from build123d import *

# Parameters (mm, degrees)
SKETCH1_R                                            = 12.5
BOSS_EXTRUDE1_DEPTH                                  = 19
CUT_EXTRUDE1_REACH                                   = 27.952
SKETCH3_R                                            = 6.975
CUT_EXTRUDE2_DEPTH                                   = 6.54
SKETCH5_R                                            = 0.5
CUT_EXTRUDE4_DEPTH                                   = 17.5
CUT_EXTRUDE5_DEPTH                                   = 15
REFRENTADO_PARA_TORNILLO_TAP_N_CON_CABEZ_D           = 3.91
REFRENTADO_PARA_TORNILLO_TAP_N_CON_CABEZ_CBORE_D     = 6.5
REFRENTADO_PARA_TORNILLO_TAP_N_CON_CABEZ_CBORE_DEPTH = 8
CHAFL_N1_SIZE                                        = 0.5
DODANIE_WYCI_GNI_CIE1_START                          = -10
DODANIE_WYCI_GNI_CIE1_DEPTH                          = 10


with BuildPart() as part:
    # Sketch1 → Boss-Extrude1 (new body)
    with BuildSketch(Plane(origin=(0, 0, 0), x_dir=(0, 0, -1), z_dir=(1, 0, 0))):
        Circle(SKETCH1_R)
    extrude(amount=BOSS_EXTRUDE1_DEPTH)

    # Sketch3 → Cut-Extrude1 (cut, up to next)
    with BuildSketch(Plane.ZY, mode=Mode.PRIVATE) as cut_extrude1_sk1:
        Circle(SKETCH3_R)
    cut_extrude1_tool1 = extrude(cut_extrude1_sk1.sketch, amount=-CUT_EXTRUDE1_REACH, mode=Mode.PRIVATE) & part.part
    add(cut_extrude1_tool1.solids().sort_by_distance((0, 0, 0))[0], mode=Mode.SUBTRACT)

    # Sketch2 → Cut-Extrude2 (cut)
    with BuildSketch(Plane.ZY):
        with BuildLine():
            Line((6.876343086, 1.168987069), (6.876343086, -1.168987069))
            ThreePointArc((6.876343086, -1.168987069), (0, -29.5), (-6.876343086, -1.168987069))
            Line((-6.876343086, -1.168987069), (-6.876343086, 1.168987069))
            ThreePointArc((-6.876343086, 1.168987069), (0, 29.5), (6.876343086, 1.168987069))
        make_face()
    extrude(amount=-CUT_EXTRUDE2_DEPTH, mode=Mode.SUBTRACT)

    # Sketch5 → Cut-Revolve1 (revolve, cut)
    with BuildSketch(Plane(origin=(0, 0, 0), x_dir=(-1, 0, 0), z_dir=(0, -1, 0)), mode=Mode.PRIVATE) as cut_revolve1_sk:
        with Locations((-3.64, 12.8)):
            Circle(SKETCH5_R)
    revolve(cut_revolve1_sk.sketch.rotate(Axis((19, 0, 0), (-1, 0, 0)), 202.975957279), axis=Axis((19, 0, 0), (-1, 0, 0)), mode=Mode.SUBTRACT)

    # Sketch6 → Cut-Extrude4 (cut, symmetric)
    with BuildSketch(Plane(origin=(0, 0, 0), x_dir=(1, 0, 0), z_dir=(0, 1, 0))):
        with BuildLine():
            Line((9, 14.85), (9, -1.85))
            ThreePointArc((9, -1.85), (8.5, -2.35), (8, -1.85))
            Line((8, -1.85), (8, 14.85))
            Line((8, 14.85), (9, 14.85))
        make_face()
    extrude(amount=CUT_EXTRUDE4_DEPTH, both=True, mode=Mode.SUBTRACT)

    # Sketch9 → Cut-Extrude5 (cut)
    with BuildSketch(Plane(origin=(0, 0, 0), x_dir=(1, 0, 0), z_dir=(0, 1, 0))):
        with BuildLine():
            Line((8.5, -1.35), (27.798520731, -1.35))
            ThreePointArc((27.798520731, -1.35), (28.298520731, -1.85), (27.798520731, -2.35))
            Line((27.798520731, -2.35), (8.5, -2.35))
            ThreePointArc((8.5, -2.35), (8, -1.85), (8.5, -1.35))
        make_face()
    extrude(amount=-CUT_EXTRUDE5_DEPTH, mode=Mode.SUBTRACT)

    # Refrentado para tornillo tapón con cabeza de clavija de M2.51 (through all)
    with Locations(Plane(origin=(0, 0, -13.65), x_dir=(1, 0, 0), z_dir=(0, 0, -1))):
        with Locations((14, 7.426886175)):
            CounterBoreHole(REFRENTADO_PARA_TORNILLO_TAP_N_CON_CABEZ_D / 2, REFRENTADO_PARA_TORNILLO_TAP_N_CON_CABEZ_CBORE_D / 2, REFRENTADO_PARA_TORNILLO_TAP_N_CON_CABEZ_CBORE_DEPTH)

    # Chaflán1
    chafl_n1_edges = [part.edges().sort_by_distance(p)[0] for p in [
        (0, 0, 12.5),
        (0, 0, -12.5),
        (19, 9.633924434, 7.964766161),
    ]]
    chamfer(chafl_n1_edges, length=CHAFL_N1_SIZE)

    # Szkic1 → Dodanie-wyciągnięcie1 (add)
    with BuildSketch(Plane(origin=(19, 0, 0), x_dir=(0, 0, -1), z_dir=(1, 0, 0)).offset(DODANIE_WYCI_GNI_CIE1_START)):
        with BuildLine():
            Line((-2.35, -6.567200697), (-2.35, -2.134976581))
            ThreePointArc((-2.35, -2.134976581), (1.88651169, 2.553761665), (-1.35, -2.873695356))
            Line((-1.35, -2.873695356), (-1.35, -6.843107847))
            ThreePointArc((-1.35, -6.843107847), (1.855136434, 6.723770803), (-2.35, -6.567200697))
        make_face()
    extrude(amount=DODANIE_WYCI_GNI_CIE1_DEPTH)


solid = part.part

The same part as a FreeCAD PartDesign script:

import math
import FreeCAD as App
import Part
import Sketcher


def edges_at(feature, points):
    """Names of the edges that pass closest to the given points."""
    edges = feature.Shape.Edges
    near = lambda p: min(range(len(edges)), key=lambda i: edges[i].distToShape(Part.Vertex(*p))[0])
    return sorted({f"Edge{near(p) + 1}" for p in points})

doc = App.newDocument("Part")
body = doc.addObject("PartDesign::Body", "Body")

sketch1 = body.newObject("Sketcher::SketchObject", "Sketch")
sketch1.AttachmentSupport = (doc.getObject("YZ_Plane"), [""])
sketch1.MapMode = "FlatFace"
sketch1.addGeometry(Part.Circle(App.Vector(0, 0, 0), App.Vector(0, 0, 1), 12.5), False)
sketch1.addConstraint([
    Sketcher.Constraint("Coincident", 0, 3, -1, 1),
    Sketcher.Constraint("Diameter", 0, 25.0),
])
pad1 = body.newObject("PartDesign::Pad", "Pad")
pad1.Profile = sketch1
pad1.Length = 19

sketch2 = body.newObject("Sketcher::SketchObject", "Sketch001")
sketch2.AttachmentSupport = (doc.getObject("YZ_Plane"), [""])
sketch2.MapMode = "FlatFace"
sketch2.addGeometry(Part.Circle(App.Vector(0, 0, 0), App.Vector(0, 0, 1), 6.975), False)
sketch2.addConstraint([
    Sketcher.Constraint("Coincident", 0, 3, -1, 1),
    Sketcher.Constraint("Diameter", 0, 13.95),
])
pocket1 = body.newObject("PartDesign::Pocket", "Pocket")
pocket1.Profile = sketch2
pocket1.Type = "UpToFirst"
pocket1.Reversed = True

sketch3 = body.newObject("Sketcher::SketchObject", "Sketch002")
sketch3.AttachmentSupport = (doc.getObject("YZ_Plane"), [""])
sketch3.MapMode = "FlatFace"
sketch3.addGeometry([
    Part.LineSegment(App.Vector(-1.168987, 6.876343, 0), App.Vector(1.168987, 6.876343, 0)),
    Part.ArcOfCircle(Part.Circle(App.Vector(14.5, 0, 0), App.Vector(0, 0, 1), 15), math.radians(-152.714615), math.radians(152.714615)),
    Part.LineSegment(App.Vector(1.168987, -6.876343, 0), App.Vector(-1.168987, -6.876343, 0)),
    Part.ArcOfCircle(Part.Circle(App.Vector(-14.5, 0, 0), App.Vector(0, 0, 1), 15), math.radians(27.285385), math.radians(332.714615)),
], False)
sketch3.addConstraint([
    Sketcher.Constraint("Coincident", 0, 2, 1, 2),
    Sketcher.Constraint("Coincident", 1, 1, 2, 1),
    Sketcher.Constraint("Coincident", 2, 2, 3, 2),
    Sketcher.Constraint("Coincident", 3, 1, 0, 1),
    Sketcher.Constraint("Horizontal", 0),
    Sketcher.Constraint("Horizontal", 2),
    Sketcher.Constraint("Equal", 1, 3),
    Sketcher.Constraint("Symmetric", 1, 3, 3, 3, -1, 1),
    Sketcher.Constraint("Symmetric", 0, 2, 1, 1, -1),
    Sketcher.Constraint("Radius", 1, 15.0),
    Sketcher.Constraint("DistanceX", 3, 3, 1, 3, 29.0),
    Sketcher.Constraint("DistanceX", 0, 1, 0, 2, 2.337974),
])
pocket2 = body.newObject("PartDesign::Pocket", "Pocket001")
pocket2.Profile = sketch3
pocket2.Length = 6.54
pocket2.Reversed = True

sketch4 = body.newObject("Sketcher::SketchObject", "Sketch003")
sketch4.AttachmentSupport = (doc.getObject("XZ_Plane"), [""])
sketch4.MapMode = "FlatFace"
sketch4.addGeometry(Part.Circle(App.Vector(3.64, -12.8, 0), App.Vector(0, 0, 1), 0.5), False)
sketch4.addConstraint([
    Sketcher.Constraint("Diameter", 0, 1.0),
    Sketcher.Constraint("DistanceY", 0, 3, -1, 1, 12.8),
    Sketcher.Constraint("DistanceX", -1, 1, 0, 3, 3.64),
])
groove = body.newObject("PartDesign::Groove", "Groove")
groove.Profile = sketch4
groove.ReferenceAxis = (sketch4, ["H_Axis"])
groove.Angle = 360

sketch5 = body.newObject("Sketcher::SketchObject", "Sketch004")
sketch5.AttachmentSupport = (doc.getObject("XZ_Plane"), [""])
sketch5.MapMode = "FlatFace"
sketch5.addGeometry([
    Part.LineSegment(App.Vector(9, 1.85, 0), App.Vector(9, -14.85, 0)),
    Part.LineSegment(App.Vector(9, -14.85, 0), App.Vector(8, -14.85, 0)),
    Part.LineSegment(App.Vector(8, -14.85, 0), App.Vector(8, 1.85, 0)),
    Part.ArcOfCircle(Part.Circle(App.Vector(8.5, 1.85, 0), App.Vector(0, 0, 1), 0.5), math.radians(0), math.radians(180)),
], False)
sketch5.addConstraint([
    Sketcher.Constraint("Coincident", 0, 2, 1, 1),
    Sketcher.Constraint("Coincident", 1, 2, 2, 1),
    Sketcher.Constraint("Tangent", 2, 2, 3, 2),
    Sketcher.Constraint("Tangent", 3, 1, 0, 1),
    Sketcher.Constraint("Vertical", 0),
    Sketcher.Constraint("Horizontal", 1),
    Sketcher.Constraint("Vertical", 2),
    Sketcher.Constraint("Radius", 3, 0.5),
    Sketcher.Constraint("DistanceY", 0, 2, 0, 1, 16.7),
    Sketcher.Constraint("DistanceX", -1, 1, 0, 2, 9.0),
    Sketcher.Constraint("DistanceY", -1, 1, 3, 3, 1.85),
])
pocket3 = body.newObject("PartDesign::Pocket", "Pocket002")
pocket3.Profile = sketch5
pocket3.Length = 35
pocket3.Midplane = True

sketch6 = body.newObject("Sketcher::SketchObject", "Sketch005")
sketch6.AttachmentSupport = (doc.getObject("XZ_Plane"), [""])
sketch6.MapMode = "FlatFace"
sketch6.addGeometry([
    Part.LineSegment(App.Vector(27.798521, 1.35, 0), App.Vector(8.5, 1.35, 0)),
    Part.ArcOfCircle(Part.Circle(App.Vector(8.5, 1.85, 0), App.Vector(0, 0, 1), 0.5), math.radians(90), math.radians(270)),
    Part.LineSegment(App.Vector(8.5, 2.35, 0), App.Vector(27.798521, 2.35, 0)),
    Part.ArcOfCircle(Part.Circle(App.Vector(27.798521, 1.85, 0), App.Vector(0, 0, 1), 0.5), math.radians(-90), math.radians(90)),
], False)
sketch6.addConstraint([
    Sketcher.Constraint("Tangent", 0, 2, 1, 2),
    Sketcher.Constraint("Tangent", 1, 1, 2, 1),
    Sketcher.Constraint("Tangent", 2, 2, 3, 2),
    Sketcher.Constraint("Tangent", 3, 1, 0, 1),
    Sketcher.Constraint("Horizontal", 0),
    Sketcher.Constraint("Horizontal", 2),
    Sketcher.Constraint("Radius", 1, 0.5),
    Sketcher.Constraint("DistanceX", -1, 1, 1, 3, 8.5),
    Sketcher.Constraint("DistanceY", -1, 1, 1, 3, 1.85),
    Sketcher.Constraint("DistanceX", 0, 2, 0, 1, 19.298521),
])
pocket4 = body.newObject("PartDesign::Pocket", "Pocket003")
pocket4.Profile = sketch6
pocket4.Length = 15
pocket4.Reversed = True

sketch7 = body.newObject("Sketcher::SketchObject", "Sketch006")
sketch7.AttachmentSupport = (doc.getObject("XY_Plane"), [""])
sketch7.MapMode = "FlatFace"
sketch7.AttachmentOffset = App.Placement(App.Vector(0, 0, -13.65), App.Rotation())
sketch7.addGeometry(Part.Circle(App.Vector(14, -7.426886, 0), App.Vector(0, 0, 1), 1.955), False)
sketch7.addConstraint([
    Sketcher.Constraint("Diameter", 0, 3.91),
    Sketcher.Constraint("DistanceX", -1, 1, 0, 3, 14.0),
    Sketcher.Constraint("DistanceY", 0, 3, -1, 1, 7.426886),
])
doc.recompute()
hole = body.newObject("PartDesign::Hole", "Hole")
hole.Profile = sketch7
hole.ThreadType = "None"
hole.Diameter = 3.91
hole.DepthType = "ThroughAll"
hole.HoleCutType = "Counterbore"
hole.HoleCutDiameter = 6.5
hole.HoleCutDepth = 8
hole.Reversed = True
doc.recompute()

chamfer = body.newObject("PartDesign::Chamfer", "Chamfer")
chamfer.Base = (hole, edges_at(hole, [(0, 0, 12.5), (0, 0, -12.5), (19, 9.634, 7.965)]))
chamfer.Size = 0.5

sketch8 = body.newObject("Sketcher::SketchObject", "Sketch007")
sketch8.AttachmentSupport = (doc.getObject("YZ_Plane"), [""])
sketch8.MapMode = "FlatFace"
sketch8.AttachmentOffset = App.Placement(App.Vector(0, 0, 9), App.Rotation())
sketch8.addGeometry([
    Part.LineSegment(App.Vector(-6.567201, 2.35, 0), App.Vector(-2.134977, 2.35, 0)),
    Part.ArcOfCircle(Part.Circle(App.Vector(0, 0, 0), App.Vector(0, 0, 1), 3.175), math.radians(154.836876), math.radians(492.255168)),
    Part.LineSegment(App.Vector(-2.873695, 1.35, 0), App.Vector(-6.843108, 1.35, 0)),
    Part.ArcOfCircle(Part.Circle(App.Vector(0, 0, 0), App.Vector(0, 0, 1), 6.975), math.radians(168.840063), math.radians(520.310814)),
], False)
sketch8.addConstraint([
    Sketcher.Constraint("Coincident", 0, 2, 1, 2),
    Sketcher.Constraint("Coincident", 1, 1, 2, 1),
    Sketcher.Constraint("Coincident", 2, 2, 3, 1),
    Sketcher.Constraint("Coincident", 3, 2, 0, 1),
    Sketcher.Constraint("Horizontal", 0),
    Sketcher.Constraint("Horizontal", 2),
    Sketcher.Constraint("Coincident", 1, 3, -1, 1),
    Sketcher.Constraint("Coincident", 3, 3, -1, 1),
    Sketcher.Constraint("Radius", 1, 3.175),
    Sketcher.Constraint("Radius", 3, 6.975),
    Sketcher.Constraint("DistanceY", 1, 1, 0, 2, 1.0),
    Sketcher.Constraint("DistanceY", -1, 1, 0, 2, 2.35),
])
pad2 = body.newObject("PartDesign::Pad", "Pad001")
pad2.Profile = sketch8
pad2.Length = 10

doc.recompute()
